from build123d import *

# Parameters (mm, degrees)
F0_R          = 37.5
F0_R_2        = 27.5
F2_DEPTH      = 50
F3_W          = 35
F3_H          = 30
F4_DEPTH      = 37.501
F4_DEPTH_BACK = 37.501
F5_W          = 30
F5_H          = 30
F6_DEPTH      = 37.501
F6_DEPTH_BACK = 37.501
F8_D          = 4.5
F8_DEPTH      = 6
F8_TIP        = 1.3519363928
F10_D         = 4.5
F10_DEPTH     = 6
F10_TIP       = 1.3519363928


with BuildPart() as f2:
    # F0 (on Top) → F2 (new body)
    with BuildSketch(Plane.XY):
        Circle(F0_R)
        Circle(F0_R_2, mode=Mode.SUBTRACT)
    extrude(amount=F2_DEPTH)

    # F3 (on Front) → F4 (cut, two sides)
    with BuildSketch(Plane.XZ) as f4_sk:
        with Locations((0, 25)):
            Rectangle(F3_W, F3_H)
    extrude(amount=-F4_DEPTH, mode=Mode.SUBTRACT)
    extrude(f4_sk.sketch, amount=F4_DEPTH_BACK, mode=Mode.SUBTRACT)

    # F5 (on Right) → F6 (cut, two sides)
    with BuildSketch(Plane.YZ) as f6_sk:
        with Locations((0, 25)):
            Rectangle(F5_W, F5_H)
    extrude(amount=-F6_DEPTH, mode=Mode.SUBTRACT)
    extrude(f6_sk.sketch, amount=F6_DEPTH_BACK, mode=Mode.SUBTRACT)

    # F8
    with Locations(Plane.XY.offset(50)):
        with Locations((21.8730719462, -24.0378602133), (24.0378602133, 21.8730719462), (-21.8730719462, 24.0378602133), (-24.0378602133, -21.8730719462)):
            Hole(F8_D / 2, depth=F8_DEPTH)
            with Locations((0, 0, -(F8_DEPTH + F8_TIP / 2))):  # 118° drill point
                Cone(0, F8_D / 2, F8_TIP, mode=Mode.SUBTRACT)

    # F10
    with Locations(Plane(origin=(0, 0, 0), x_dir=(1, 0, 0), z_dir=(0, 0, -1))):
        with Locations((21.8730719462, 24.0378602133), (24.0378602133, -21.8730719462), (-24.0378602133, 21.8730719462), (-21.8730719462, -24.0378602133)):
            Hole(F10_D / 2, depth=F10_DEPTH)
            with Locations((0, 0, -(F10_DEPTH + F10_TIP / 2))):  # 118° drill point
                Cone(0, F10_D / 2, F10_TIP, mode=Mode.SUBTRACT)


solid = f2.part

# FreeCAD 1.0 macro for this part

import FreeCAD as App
import Part
import Sketcher

V = App.Vector
Q = App.Units.Quantity

doc = App.newDocument("Part")
body = doc.addObject("PartDesign::Body", "Body")

sketch1 = body.newObject("Sketcher::SketchObject", "Sketch")
sketch1.AttachmentSupport = (doc.getObject("XY_Plane"), [""])
sketch1.MapMode = "FlatFace"
sketch1.addGeometry(Part.Circle(V(0, 0, 0), V(0, 0, 1), 38), False)
sketch1.addGeometry(Part.Circle(V(0, 0, 0), V(0, 0, 1), 28), False)
sketch1.addConstraint(Sketcher.Constraint("Coincident", 0, 3, -1, 1))
sketch1.addConstraint(Sketcher.Constraint("Coincident", 1, 3, -1, 1))
sketch1.addConstraint(Sketcher.Constraint("Diameter", 0, Q("75 mm")))
sketch1.addConstraint(Sketcher.Constraint("Diameter", 1, Q("55 mm")))
pad1 = body.newObject("PartDesign::Pad", "Pad")
pad1.Profile = sketch1
pad1.Length = 50

sketch2 = body.newObject("Sketcher::SketchObject", "Sketch001")
sketch2.AttachmentSupport = (doc.getObject("XZ_Plane"), [""])
sketch2.MapMode = "FlatFace"
sketch2.addGeometry(Part.LineSegment(V(-18, 40, 0), V(-18, 10, 0)), False)
sketch2.addGeometry(Part.LineSegment(V(-18, 10, 0), V(18, 10, 0)), False)
sketch2.addGeometry(Part.LineSegment(V(18, 10, 0), V(18, 40, 0)), False)
sketch2.addGeometry(Part.LineSegment(V(18, 40, 0), V(-18, 40, 0)), False)
sketch2.addConstraint(Sketcher.Constraint("Coincident", 0, 2, 1, 1))
sketch2.addConstraint(Sketcher.Constraint("Coincident", 1, 2, 2, 1))
sketch2.addConstraint(Sketcher.Constraint("Coincident", 2, 2, 3, 1))
sketch2.addConstraint(Sketcher.Constraint("Coincident", 3, 2, 0, 1))
sketch2.addConstraint(Sketcher.Constraint("Vertical", 0))
sketch2.addConstraint(Sketcher.Constraint("Horizontal", 1))
sketch2.addConstraint(Sketcher.Constraint("Vertical", 2))
sketch2.addConstraint(Sketcher.Constraint("Horizontal", 3))
sketch2.addConstraint(Sketcher.Constraint("DistanceX", 1, 1, 1, 2, Q("35 mm")))
sketch2.addConstraint(Sketcher.Constraint("DistanceY", 0, 2, 0, 1, Q("30 mm")))
sketch2.addConstraint(Sketcher.Constraint("DistanceY", -1, 1, 0, 2, Q("10 mm")))
sketch2.addConstraint(Sketcher.Constraint("DistanceX", 0, 2, -1, 1, Q("17.5 mm")))
pocket1 = body.newObject("PartDesign::Pocket", "Pocket")
pocket1.Profile = sketch2
pocket1.Type = "ThroughAll"
pocket1.Midplane = True

sketch3 = body.newObject("Sketcher::SketchObject", "Sketch002")
sketch3.AttachmentSupport = (doc.getObject("YZ_Plane"), [""])
sketch3.MapMode = "FlatFace"
sketch3.addGeometry(Part.LineSegment(V(-15, 40, 0), V(-15, 10, 0)), False)
sketch3.addGeometry(Part.LineSegment(V(-15, 10, 0), V(15, 10, 0)), False)
sketch3.addGeometry(Part.LineSegment(V(15, 10, 0), V(15, 40, 0)), False)
sketch3.addGeometry(Part.LineSegment(V(15, 40, 0), V(-15, 40, 0)), False)
sketch3.addConstraint(Sketcher.Constraint("Coincident", 0, 2, 1, 1))
sketch3.addConstraint(Sketcher.Constraint("Coincident", 1, 2, 2, 1))
sketch3.addConstraint(Sketcher.Constraint("Coincident", 2, 2, 3, 1))
sketch3.addConstraint(Sketcher.Constraint("Coincident", 3, 2, 0, 1))
sketch3.addConstraint(Sketcher.Constraint("Vertical", 0))
sketch3.addConstraint(Sketcher.Constraint("Horizontal", 1))
sketch3.addConstraint(Sketcher.Constraint("Vertical", 2))
sketch3.addConstraint(Sketcher.Constraint("Horizontal", 3))
sketch3.addConstraint(Sketcher.Constraint("Equal", 3, 0))
sketch3.addConstraint(Sketcher.Constraint("DistanceX", 1, 1, 1, 2, Q("30 mm")))
sketch3.addConstraint(Sketcher.Constraint("DistanceX", 0, 2, -1, 1, Q("15 mm")))
sketch3.addConstraint(Sketcher.Constraint("DistanceY", -1, 1, 0, 2, Q("10 mm")))
pocket2 = body.newObject("PartDesign::Pocket", "Pocket001")
pocket2.Profile = sketch3
pocket2.Type = "ThroughAll"
pocket2.Midplane = True

sketch4 = body.newObject("Sketcher::SketchObject", "Sketch003")
sketch4.AttachmentSupport = (doc.getObject("XY_Plane"), [""])
sketch4.MapMode = "FlatFace"
sketch4.AttachmentOffset = App.Placement(V(0, 0, 50), App.Rotation())
sketch4.addGeometry(Part.Circle(V(21.9, -24, 0), V(0, 0, 1), 2.2), False)
sketch4.addGeometry(Part.Circle(V(24, 21.9, 0), V(0, 0, 1), 2.2), False)
sketch4.addGeometry(Part.Circle(V(-21.9, 24, 0), V(0, 0, 1), 2.2), False)
sketch4.addGeometry(Part.Circle(V(-24, -21.9, 0), V(0, 0, 1), 2.2), False)
sketch4.addConstraint(Sketcher.Constraint("Equal", 0, 1))
sketch4.addConstraint(Sketcher.Constraint("Equal", 1, 2))
sketch4.addConstraint(Sketcher.Constraint("Equal", 2, 3))
sketch4.addConstraint(Sketcher.Constraint("Symmetric", 0, 3, 2, 3, -1, 1))
sketch4.addConstraint(Sketcher.Constraint("Symmetric", 1, 3, 3, 3, -1, 1))
sketch4.addConstraint(Sketcher.Constraint("Diameter", 0, Q("4.5 mm")))
sketch4.addConstraint(Sketcher.Constraint("DistanceX", -1, 1, 0, 3, Q("21.873072 mm")))
sketch4.addConstraint(Sketcher.Constraint("DistanceY", 0, 3, -1, 1, Q("24.03786 mm")))
sketch4.addConstraint(Sketcher.Constraint("DistanceX", -1, 1, 1, 3, Q("24.03786 mm")))
sketch4.addConstraint(Sketcher.Constraint("DistanceY", -1, 1, 1, 3, Q("21.873072 mm")))
doc.recompute()
hole = body.newObject("PartDesign::Hole", "Hole")
hole.Profile = sketch4
hole.ThreadType = "None"
hole.Diameter = 4.5
hole.DepthType = "Dimension"
hole.Depth = 6
hole.DrillPoint = "Angled"
hole.DrillPointAngle = 118

sketch5 = body.newObject("Sketcher::SketchObject", "Sketch004")
sketch5.AttachmentSupport = (doc.getObject("XY_Plane"), [""])
sketch5.MapMode = "FlatFace"
sketch5.addGeometry(Part.Circle(V(21.9, -24, 0), V(0, 0, 1), 2.2), False)
sketch5.addGeometry(Part.Circle(V(24, 21.9, 0), V(0, 0, 1), 2.2), False)
sketch5.addGeometry(Part.Circle(V(-24, -21.9, 0), V(0, 0, 1), 2.2), False)
sketch5.addGeometry(Part.Circle(V(-21.9, 24, 0), V(0, 0, 1), 2.2), False)
sketch5.addConstraint(Sketcher.Constraint("Equal", 0, 1))
sketch5.addConstraint(Sketcher.Constraint("Equal", 1, 2))
sketch5.addConstraint(Sketcher.Constraint("Equal", 2, 3))
sketch5.addConstraint(Sketcher.Constraint("Symmetric", 1, 3, 2, 3, -1, 1))
sketch5.addConstraint(Sketcher.Constraint("Symmetric", 0, 3, 3, 3, -1, 1))
sketch5.addConstraint(Sketcher.Constraint("Diameter", 0, Q("4.5 mm")))
sketch5.addConstraint(Sketcher.Constraint("DistanceX", -1, 1, 0, 3, Q("21.873072 mm")))
sketch5.addConstraint(Sketcher.Constraint("DistanceY", 0, 3, -1, 1, Q("24.03786 mm")))
sketch5.addConstraint(Sketcher.Constraint("DistanceX", -1, 1, 1, 3, Q("24.03786 mm")))
sketch5.addConstraint(Sketcher.Constraint("DistanceY", -1, 1, 1, 3, Q("21.873072 mm")))
doc.recompute()
hole2 = body.newObject("PartDesign::Hole", "Hole001")
hole2.Profile = sketch5
hole2.ThreadType = "None"
hole2.Diameter = 4.5
hole2.DepthType = "Dimension"
hole2.Depth = 6
hole2.DrillPoint = "Angled"
hole2.DrillPointAngle = 118
hole2.Reversed = True

doc.recompute()
